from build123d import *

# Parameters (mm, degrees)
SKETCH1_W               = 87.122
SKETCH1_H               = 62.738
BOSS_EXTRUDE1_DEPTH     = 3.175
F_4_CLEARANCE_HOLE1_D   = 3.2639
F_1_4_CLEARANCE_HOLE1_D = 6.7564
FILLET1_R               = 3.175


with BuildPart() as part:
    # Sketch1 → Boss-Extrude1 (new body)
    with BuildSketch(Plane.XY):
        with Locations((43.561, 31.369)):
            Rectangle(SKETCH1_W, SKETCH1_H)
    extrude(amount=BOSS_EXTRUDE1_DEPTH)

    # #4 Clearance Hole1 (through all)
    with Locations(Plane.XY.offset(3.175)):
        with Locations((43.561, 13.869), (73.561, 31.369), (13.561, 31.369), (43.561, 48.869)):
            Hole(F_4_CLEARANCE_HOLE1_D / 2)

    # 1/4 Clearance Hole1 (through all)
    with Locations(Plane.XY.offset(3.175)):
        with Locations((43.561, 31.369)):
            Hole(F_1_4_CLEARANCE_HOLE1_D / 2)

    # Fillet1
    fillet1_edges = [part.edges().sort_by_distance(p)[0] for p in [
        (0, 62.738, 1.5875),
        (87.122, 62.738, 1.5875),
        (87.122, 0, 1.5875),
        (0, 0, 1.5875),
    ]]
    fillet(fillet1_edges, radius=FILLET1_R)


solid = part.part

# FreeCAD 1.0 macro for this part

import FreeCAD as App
import Part
import Sketcher
Q = App.Units.Quantity


def edges_at(feature, points):
    """Names of the edges that pass closest to the given points."""
    edges = feature.Shape.Edges
    near = lambda p: min(range(len(edges)), key=lambda i: edges[i].distToShape(Part.Vertex(*p))[0])
    return sorted({f"Edge{near(p) + 1}" for p in points})


def add_polygon(sketch, points):
    """Adds a closed chain of lines whose ends are joined by coincident constraints."""
    first, n = sketch.GeometryCount, len(points)
    for a, b in zip(points, points[1:] + points[:1]):
        sketch.addGeometry(Part.LineSegment(App.Vector(*a, 0), App.Vector(*b, 0)), False)
    for i in range(n):
        sketch.addConstraint(Sketcher.Constraint("Coincident", first + i, 2, first + (i + 1) % n, 1))

doc = App.newDocument("Part")
params = doc.addObject("Spreadsheet::Sheet", "Params")
for row, (alias, value) in enumerate([
    ("sketch1_width", "3.43 in"),
    ("sketch1_height", "2.47 in"),
    ("pad1_length", "0.125 in"),
    ("hole_diameter", "0.1285 in"),
    ("sketch3_diameter", "0.266 in"),
    ("hole2_diameter", "0.266 in"),
    ("fillet_radius", "0.125 in"),
], start=1):
    params.set(f"A{row}", alias)
    params.set(f"B{row}", "=" + value)
    params.setAlias(f"B{row}", alias)

body = doc.addObject("PartDesign::Body", "Body")

# Sketch on XY plane
sketch1 = doc.addObject("Sketcher::SketchObject", "Sketch")
body.addObject(sketch1)
sketch1.AttachmentSupport = (doc.XY_Plane, [""])
sketch1.MapMode = "FlatFace"
add_polygon(sketch1, [(0, 62.738), (0, 0), (87.122, 0), (87.122, 62.738)])  # lines 0-3
sketch1.addConstraint([
    Sketcher.Constraint("Vertical", 0),
    Sketcher.Constraint("Horizontal", 1),
    Sketcher.Constraint("Vertical", 2),
    Sketcher.Constraint("Horizontal", 3),
    Sketcher.Constraint("Coincident", 0, 2, -1, 1),
    Sketcher.Constraint("DistanceX", 1, 1, 1, 2, Q("3.43 in")),
    Sketcher.Constraint("DistanceY", 0, 2, 0, 1, Q("2.47 in")),
])
sketch1.setExpression("Constraints[9]", "Params.sketch1_width")
sketch1.setExpression("Constraints[10]", "Params.sketch1_height")
pad1 = doc.addObject("PartDesign::Pad", "Pad")
body.addObject(pad1)
pad1.Profile = sketch1
pad1.setExpression("Length", "Params.pad1_length")

# Sketch on XY plane
sketch2 = doc.addObject("Sketcher::SketchObject", "Sketch001")
body.addObject(sketch2)
sketch2.AttachmentSupport = (doc.XY_Plane, [""])
sketch2.MapMode = "FlatFace"
sketch2.AttachmentOffset = App.Placement(App.Vector(0, 0, 0.125 * 25.4), App.Rotation())
sketch2.addGeometry([
    Part.Circle(App.Vector(43.561, 13.869, 0), App.Vector(0, 0, 1), 1.63195),
    Part.Circle(App.Vector(73.561, 31.369, 0), App.Vector(0, 0, 1), 1.63195),
    Part.Circle(App.Vector(13.561, 31.369, 0), App.Vector(0, 0, 1), 1.63195),
    Part.Circle(App.Vector(43.561, 48.869, 0), App.Vector(0, 0, 1), 1.63195),
], False)
sketch2.addConstraint([
    Sketcher.Constraint("Equal", 0, 1),
    Sketcher.Constraint("Equal", 1, 2),
    Sketcher.Constraint("Equal", 2, 3),
    Sketcher.Constraint("Horizontal", 1, 3, 2, 3),
    Sketcher.Constraint("Vertical", 0, 3, 3, 3),
    Sketcher.Constraint("Diameter", 0, Q("0.1285 in")),
    Sketcher.Constraint("DistanceX", -1, 1, 0, 3, Q("1.715 in")),
    Sketcher.Constraint("DistanceY", -1, 1, 1, 3, Q("1.235 in")),
    Sketcher.Constraint("DistanceY", -1, 1, 0, 3, 13.869),
    Sketcher.Constraint("DistanceX", -1, 1, 1, 3, 73.561),
    Sketcher.Constraint("DistanceX", -1, 1, 2, 3, 13.561),
    Sketcher.Constraint("DistanceY", -1, 1, 3, 3, 48.869),
])
doc.recompute()
hole = doc.addObject("PartDesign::Hole", "Hole")
body.addObject(hole)
hole.Profile = sketch2
hole.ThreadType = "None"
hole.setExpression("Diameter", "Params.hole_diameter")
hole.DepthType = "ThroughAll"

# Sketch on XY plane
sketch3 = doc.addObject("Sketcher::SketchObject", "Sketch002")
body.addObject(sketch3)
sketch3.AttachmentSupport = (doc.XY_Plane, [""])
sketch3.MapMode = "FlatFace"
sketch3.AttachmentOffset = App.Placement(App.Vector(0, 0, 0.125 * 25.4), App.Rotation())
sketch3.addGeometry(Part.Circle(App.Vector(43.561, 31.369, 0), App.Vector(0, 0, 1), 3.3782), False)
sketch3.addConstraint([
    Sketcher.Constraint("Diameter", 0, Q("0.266 in")),
    Sketcher.Constraint("DistanceX", -1, 1, 0, 3, Q("1.715 in")),
    Sketcher.Constraint("DistanceY", -1, 1, 0, 3, Q("1.235 in")),
])
sketch3.setExpression("Constraints[0]", "Params.sketch3_diameter")
doc.recompute()
hole2 = doc.addObject("PartDesign::Hole", "Hole001")
body.addObject(hole2)
hole2.Profile = sketch3
hole2.ThreadType = "None"
hole2.setExpression("Diameter", "Params.hole2_diameter")
hole2.DepthType = "ThroughAll"
doc.recompute()

fillet = doc.addObject("PartDesign::Fillet", "Fillet")
body.addObject(fillet)
fillet.Base = (hole2, edges_at(hole2, [
    (0, 62.738, 1.587),
    (87.122, 62.738, 1.587),
    (87.122, 0, 1.587),
    (0, 0, 1.587),
]))
fillet.setExpression("Radius", "Params.fillet_radius")

doc.recompute()
